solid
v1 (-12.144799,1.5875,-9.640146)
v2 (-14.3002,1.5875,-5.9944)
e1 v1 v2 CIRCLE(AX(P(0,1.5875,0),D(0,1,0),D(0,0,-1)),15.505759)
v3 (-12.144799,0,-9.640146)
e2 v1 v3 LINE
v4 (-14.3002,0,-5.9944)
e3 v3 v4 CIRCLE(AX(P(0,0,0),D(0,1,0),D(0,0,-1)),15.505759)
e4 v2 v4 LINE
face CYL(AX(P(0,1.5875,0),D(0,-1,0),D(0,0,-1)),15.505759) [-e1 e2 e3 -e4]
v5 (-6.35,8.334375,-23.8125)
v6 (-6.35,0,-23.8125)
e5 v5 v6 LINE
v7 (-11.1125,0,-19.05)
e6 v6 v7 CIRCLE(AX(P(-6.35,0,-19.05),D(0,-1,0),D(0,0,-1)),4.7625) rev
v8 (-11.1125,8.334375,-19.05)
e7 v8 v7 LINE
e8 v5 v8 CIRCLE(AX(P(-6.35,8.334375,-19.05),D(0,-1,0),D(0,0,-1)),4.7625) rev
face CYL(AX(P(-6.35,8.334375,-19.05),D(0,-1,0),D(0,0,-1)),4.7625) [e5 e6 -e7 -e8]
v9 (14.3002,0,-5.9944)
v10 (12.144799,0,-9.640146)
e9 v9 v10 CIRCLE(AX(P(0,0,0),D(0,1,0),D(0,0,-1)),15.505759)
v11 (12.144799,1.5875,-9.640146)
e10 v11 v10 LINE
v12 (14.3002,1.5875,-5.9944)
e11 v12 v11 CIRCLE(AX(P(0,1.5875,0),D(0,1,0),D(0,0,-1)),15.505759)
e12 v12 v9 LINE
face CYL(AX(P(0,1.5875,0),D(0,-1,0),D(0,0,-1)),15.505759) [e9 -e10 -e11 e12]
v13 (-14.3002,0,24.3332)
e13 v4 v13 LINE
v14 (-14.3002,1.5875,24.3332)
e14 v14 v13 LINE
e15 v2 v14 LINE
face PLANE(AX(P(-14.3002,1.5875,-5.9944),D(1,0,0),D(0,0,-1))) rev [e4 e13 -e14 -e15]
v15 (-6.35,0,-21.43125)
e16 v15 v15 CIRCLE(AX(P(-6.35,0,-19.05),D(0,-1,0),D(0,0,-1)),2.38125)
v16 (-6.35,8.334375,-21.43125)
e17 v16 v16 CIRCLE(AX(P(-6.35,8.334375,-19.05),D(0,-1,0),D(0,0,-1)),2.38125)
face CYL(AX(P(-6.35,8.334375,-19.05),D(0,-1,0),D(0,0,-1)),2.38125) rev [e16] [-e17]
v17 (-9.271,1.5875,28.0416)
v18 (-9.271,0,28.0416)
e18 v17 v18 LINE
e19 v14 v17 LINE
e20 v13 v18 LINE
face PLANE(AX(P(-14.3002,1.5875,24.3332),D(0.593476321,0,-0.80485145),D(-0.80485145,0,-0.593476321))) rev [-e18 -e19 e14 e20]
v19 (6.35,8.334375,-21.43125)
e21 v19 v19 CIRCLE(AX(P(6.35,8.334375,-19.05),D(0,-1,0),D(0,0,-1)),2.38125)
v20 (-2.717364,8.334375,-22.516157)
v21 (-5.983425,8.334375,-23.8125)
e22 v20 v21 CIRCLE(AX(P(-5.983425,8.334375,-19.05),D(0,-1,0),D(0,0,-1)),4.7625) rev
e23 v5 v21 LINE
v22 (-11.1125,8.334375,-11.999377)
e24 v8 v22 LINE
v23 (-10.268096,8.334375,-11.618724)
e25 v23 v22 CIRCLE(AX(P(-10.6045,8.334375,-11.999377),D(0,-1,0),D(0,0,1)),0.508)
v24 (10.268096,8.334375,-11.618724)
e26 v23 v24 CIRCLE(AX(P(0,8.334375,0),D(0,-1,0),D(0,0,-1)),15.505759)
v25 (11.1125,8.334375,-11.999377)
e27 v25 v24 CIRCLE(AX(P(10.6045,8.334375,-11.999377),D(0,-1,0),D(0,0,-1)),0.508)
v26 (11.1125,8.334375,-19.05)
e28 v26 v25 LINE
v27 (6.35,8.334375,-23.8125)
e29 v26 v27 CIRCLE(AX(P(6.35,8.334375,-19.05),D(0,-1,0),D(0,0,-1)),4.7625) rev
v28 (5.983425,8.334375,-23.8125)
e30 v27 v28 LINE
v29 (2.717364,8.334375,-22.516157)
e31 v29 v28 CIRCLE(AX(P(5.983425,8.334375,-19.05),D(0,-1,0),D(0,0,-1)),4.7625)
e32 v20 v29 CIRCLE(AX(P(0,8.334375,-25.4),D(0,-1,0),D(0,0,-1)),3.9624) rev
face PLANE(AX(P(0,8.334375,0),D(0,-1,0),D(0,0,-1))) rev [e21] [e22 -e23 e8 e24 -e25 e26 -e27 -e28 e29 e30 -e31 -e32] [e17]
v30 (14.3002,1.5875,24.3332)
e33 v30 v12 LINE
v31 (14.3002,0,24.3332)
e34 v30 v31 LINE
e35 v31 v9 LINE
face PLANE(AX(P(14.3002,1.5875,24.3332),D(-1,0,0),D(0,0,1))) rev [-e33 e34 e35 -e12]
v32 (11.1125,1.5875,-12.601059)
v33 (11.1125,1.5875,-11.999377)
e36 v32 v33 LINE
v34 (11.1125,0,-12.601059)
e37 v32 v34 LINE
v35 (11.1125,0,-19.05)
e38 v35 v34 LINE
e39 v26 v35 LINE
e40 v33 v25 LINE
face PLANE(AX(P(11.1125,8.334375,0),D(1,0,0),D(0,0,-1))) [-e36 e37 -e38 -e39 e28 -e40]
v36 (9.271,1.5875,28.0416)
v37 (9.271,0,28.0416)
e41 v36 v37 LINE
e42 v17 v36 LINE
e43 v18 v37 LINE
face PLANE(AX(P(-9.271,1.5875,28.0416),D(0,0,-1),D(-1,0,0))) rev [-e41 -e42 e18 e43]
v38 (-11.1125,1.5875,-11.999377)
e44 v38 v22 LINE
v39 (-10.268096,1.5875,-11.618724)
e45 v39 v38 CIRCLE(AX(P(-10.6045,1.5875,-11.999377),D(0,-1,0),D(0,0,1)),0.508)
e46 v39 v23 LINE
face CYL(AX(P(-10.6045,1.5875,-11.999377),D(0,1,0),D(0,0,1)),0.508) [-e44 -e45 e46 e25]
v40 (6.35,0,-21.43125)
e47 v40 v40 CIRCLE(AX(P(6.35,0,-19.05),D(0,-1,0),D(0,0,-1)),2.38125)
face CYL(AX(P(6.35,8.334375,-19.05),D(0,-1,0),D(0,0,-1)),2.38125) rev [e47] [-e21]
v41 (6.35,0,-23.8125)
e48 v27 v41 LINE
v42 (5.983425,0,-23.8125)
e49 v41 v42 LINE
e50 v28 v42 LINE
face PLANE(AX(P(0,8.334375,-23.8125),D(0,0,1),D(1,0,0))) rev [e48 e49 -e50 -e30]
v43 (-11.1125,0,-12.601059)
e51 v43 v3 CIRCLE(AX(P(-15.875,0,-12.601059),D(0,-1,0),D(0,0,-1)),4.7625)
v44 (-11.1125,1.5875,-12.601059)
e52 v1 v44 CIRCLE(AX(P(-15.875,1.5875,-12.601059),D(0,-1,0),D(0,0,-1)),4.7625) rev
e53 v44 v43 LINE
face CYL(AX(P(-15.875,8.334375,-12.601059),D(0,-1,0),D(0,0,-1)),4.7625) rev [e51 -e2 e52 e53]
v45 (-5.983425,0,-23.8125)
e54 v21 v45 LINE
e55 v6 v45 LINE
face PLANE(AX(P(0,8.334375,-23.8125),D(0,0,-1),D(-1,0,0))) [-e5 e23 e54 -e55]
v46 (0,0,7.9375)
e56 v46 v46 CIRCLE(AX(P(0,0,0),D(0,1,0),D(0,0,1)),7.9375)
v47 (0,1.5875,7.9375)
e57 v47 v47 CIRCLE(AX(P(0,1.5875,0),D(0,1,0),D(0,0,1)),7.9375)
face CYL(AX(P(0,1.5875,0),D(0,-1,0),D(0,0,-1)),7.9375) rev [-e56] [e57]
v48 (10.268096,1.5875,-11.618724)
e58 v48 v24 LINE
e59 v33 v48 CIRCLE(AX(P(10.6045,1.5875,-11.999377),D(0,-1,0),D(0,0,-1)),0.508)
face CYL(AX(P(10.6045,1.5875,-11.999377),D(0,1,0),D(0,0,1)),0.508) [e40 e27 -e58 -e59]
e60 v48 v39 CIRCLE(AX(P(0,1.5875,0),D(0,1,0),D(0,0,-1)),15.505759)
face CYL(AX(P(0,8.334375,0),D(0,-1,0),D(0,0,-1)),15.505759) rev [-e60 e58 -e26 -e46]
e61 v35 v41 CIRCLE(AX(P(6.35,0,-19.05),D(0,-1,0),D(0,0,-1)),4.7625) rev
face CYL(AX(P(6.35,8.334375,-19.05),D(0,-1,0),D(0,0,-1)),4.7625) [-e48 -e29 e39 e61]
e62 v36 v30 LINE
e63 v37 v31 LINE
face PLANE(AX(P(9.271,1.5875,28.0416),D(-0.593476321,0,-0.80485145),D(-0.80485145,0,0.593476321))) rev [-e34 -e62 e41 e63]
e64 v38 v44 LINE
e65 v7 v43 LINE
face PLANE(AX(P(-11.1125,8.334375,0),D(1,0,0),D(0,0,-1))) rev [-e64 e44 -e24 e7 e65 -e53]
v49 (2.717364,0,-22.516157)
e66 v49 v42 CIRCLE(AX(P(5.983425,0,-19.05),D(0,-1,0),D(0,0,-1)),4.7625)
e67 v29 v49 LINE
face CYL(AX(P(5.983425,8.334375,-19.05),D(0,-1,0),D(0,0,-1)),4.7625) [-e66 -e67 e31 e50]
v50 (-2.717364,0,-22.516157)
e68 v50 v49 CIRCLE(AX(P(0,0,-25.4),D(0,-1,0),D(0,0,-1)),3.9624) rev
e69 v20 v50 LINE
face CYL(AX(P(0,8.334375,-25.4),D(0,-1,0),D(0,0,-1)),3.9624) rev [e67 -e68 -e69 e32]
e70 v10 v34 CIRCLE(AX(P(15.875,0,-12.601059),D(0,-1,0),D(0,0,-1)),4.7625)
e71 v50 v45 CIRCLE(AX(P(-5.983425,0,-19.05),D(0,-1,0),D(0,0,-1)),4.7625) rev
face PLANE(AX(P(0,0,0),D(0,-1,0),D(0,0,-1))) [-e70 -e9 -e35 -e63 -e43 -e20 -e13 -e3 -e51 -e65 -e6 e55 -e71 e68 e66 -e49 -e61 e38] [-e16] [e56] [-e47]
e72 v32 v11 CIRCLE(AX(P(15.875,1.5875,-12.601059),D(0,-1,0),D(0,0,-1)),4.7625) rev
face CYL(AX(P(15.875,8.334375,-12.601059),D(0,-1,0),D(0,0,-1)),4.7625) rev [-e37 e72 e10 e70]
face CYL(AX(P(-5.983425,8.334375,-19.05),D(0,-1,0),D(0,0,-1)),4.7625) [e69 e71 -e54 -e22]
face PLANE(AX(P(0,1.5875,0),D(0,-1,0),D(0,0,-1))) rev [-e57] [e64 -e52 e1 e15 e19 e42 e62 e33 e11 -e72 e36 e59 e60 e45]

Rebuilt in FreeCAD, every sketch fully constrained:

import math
import FreeCAD as App
import Part
import Sketcher
from FreeCAD import Vector
Q = App.Units.Quantity

doc = App.newDocument("Part")
body = doc.addObject("PartDesign::Body", "Body")

# Sketch on XZ plane
sketch1 = doc.addObject("Sketcher::SketchObject", "Sketch")
body.addObject(sketch1)
sketch1.AttachmentSupport = (doc.XZ_Plane, [""])
sketch1.MapMode = "FlatFace"
sketch1.addGeometry([
    Part.LineSegment(Vector(-14, 24, 0), Vector(-9, 28, 0)),  # 0
    Part.LineSegment(Vector(-9, 28, 0), Vector(9, 28, 0)),  # 1
    Part.LineSegment(Vector(9, 28, 0), Vector(14, 24, 0)),  # 2
    Part.LineSegment(Vector(14, 24, 0), Vector(14, -6, 0)),  # 3
    Part.ArcOfCircle(Part.Circle(Vector(0, 0, 0), Vector(0, 0, 1), 16), math.radians(-157), math.radians(-23)),  # 4
    Part.LineSegment(Vector(-14, -6, 0), Vector(-14, 24, 0)),  # 5
    Part.Circle(Vector(0, 0, 0), Vector(0, 0, 1), 8),  # 6
], False)
sketch1.addConstraint([
    Sketcher.Constraint("Coincident", 0, 2, 1, 1),
    Sketcher.Constraint("Coincident", 1, 2, 2, 1),
    Sketcher.Constraint("Coincident", 2, 2, 3, 1),
    Sketcher.Constraint("Coincident", 3, 2, 4, 2),
    Sketcher.Constraint("Coincident", 4, 1, 5, 1),
    Sketcher.Constraint("Coincident", 5, 2, 0, 1),
    Sketcher.Constraint("Horizontal", 1),
    Sketcher.Constraint("Vertical", 3),
    Sketcher.Constraint("Vertical", 5),
    Sketcher.Constraint("Coincident", 4, 3, -1, 1),
    Sketcher.Constraint("Coincident", 6, 3, -1, 1),
    Sketcher.Constraint("Symmetric", 2, 2, 5, 2, -2),
    Sketcher.Constraint("Equal", 0, 2),
    Sketcher.Constraint("Diameter", 6, Q("0.625 in")),
    Sketcher.Constraint("DistanceX", 1, 1, 1, 2, Q("0.73 in")),
    Sketcher.Constraint("DistanceY", 3, 2, 3, 1, Q("1.194 in")),
    Sketcher.Constraint("DistanceY", 3, 2, 1, 2, Q("1.34 in")),
    Sketcher.Constraint("DistanceY", -1, 1, 0, 2, Q("1.104 in")),
    Sketcher.Constraint("DistanceX", -1, 1, 2, 2, Q("0.563 in")),
])
pad1 = doc.addObject("PartDesign::Pad", "Pad")
body.addObject(pad1)
pad1.Profile = sketch1
pad1.Length = Q("0.0625 in")
pad1.Reversed = True

# Sketch on XZ plane
sketch2 = doc.addObject("Sketcher::SketchObject", "Sketch001")
body.addObject(sketch2)
sketch2.AttachmentSupport = (doc.XZ_Plane, [""])
sketch2.MapMode = "FlatFace"
sketch2.addGeometry([
    Part.LineSegment(Vector(-11.11, -12.6, 0), Vector(-11.11, -19.05, 0)),  # 0
    Part.ArcOfCircle(Part.Circle(Vector(-6.35, -19.05, 0), Vector(0, 0, 1), 4.76), math.radians(-180), math.radians(-90)),  # 1
    Part.LineSegment(Vector(-6.35, -23.81, 0), Vector(-5.98, -23.81, 0)),  # 2
    Part.ArcOfCircle(Part.Circle(Vector(-5.98, -19.05, 0), Vector(0, 0, 1), 4.76), math.radians(-90), math.radians(-47)),  # 3
    Part.ArcOfCircle(Part.Circle(Vector(0, -25.4, 0), Vector(0, 0, 1), 3.96), math.radians(47), math.radians(133)),  # 4
    Part.ArcOfCircle(Part.Circle(Vector(5.98, -19.05, 0), Vector(0, 0, 1), 4.76), math.radians(-133), math.radians(-90)),  # 5
    Part.LineSegment(Vector(5.98, -23.81, 0), Vector(6.35, -23.81, 0)),  # 6
    Part.ArcOfCircle(Part.Circle(Vector(6.35, -19.05, 0), Vector(0, 0, 1), 4.76), math.radians(-90), math.radians(0)),  # 7
    Part.LineSegment(Vector(11.11, -19.05, 0), Vector(11.11, -12.6, 0)),  # 8
    Part.ArcOfCircle(Part.Circle(Vector(15.87, -12.6, 0), Vector(0, 0, 1), 4.76), math.radians(142), math.radians(180)),  # 9
    Part.ArcOfCircle(Part.Circle(Vector(0, 0, 0), Vector(0, 0, 1), 15.51), math.radians(-142), math.radians(-38)),  # 10
    Part.ArcOfCircle(Part.Circle(Vector(-15.87, -12.6, 0), Vector(0, 0, 1), 4.76), math.radians(0), math.radians(38)),  # 11
    Part.Circle(Vector(-6.35, -19.05, 0), Vector(0, 0, 1), 2.38),  # 12
    Part.Circle(Vector(6.35, -19.05, 0), Vector(0, 0, 1), 2.38),  # 13
], False)
sketch2.addConstraint([
    Sketcher.Constraint("Tangent", 0, 2, 1, 1),
    Sketcher.Constraint("Tangent", 1, 2, 2, 1),
    Sketcher.Constraint("Tangent", 2, 2, 3, 1),
    Sketcher.Constraint("Tangent", 3, 2, 4, 2),
    Sketcher.Constraint("Tangent", 4, 1, 5, 1),
    Sketcher.Constraint("Tangent", 5, 2, 6, 1),
    Sketcher.Constraint("Tangent", 6, 2, 7, 1),
    Sketcher.Constraint("Tangent", 7, 2, 8, 1),
    Sketcher.Constraint("Tangent", 8, 2, 9, 2),
    Sketcher.Constraint("Tangent", 9, 1, 10, 2),
    Sketcher.Constraint("Tangent", 10, 1, 11, 2),
    Sketcher.Constraint("Tangent", 11, 1, 0, 1),
    Sketcher.Constraint("Vertical", 0),
    Sketcher.Constraint("Horizontal", 2),
    Sketcher.Constraint("Horizontal", 6),
    Sketcher.Constraint("Vertical", 8),
    Sketcher.Constraint("Coincident", 10, 3, -1, 1),
    Sketcher.Constraint("Coincident", 12, 3, 1, 3),
    Sketcher.Constraint("Coincident", 13, 3, 7, 3),
    Sketcher.Constraint("Equal", 1, 3),
    Sketcher.Constraint("Equal", 3, 5),
    Sketcher.Constraint("Equal", 5, 7),
    Sketcher.Constraint("Equal", 7, 9),
    Sketcher.Constraint("Equal", 9, 11),
    Sketcher.Constraint("Equal", 12, 13),
    Sketcher.Constraint("Symmetric", 3, 3, 5, 3, -2),
    Sketcher.Constraint("Horizontal", 9, 3, 11, 3),
    Sketcher.Constraint("Diameter", 12, Q("0.1875 in")),
    Sketcher.Constraint("DistanceY", 4, 3, -1, 1, Q("1 in")),
    Sketcher.Constraint("Radius", 1, Q("0.1875 in")),
    Sketcher.Constraint("Radius", 4, Q("0.156 in")),
    Sketcher.Constraint("DistanceX", 1, 3, 7, 3, Q("0.5 in")),
    Sketcher.Constraint("DistanceY", 1, 3, -1, 1, Q("0.75 in")),
    Sketcher.Constraint("Radius", 10, 15.505759),
])
pad2 = doc.addObject("PartDesign::Pad", "Pad001")
body.addObject(pad2)
pad2.Profile = sketch2
pad2.Length = Q("0.328125 in")
pad2.Reversed = True

# Sketch on XZ plane
sketch3 = doc.addObject("Sketcher::SketchObject", "Sketch002")
body.addObject(sketch3)
sketch3.AttachmentSupport = (doc.XZ_Plane, [""])
sketch3.MapMode = "FlatFace"
sketch3.AttachmentOffset = App.Placement(Vector(0, 0, -0.0625 * 25.4), App.Rotation())
sketch3.addGeometry([
    Part.LineSegment(Vector(-11.1, -12, 0), Vector(-11.1, -19.1, 0)),  # 0
    Part.LineSegment(Vector(-11.1, -19.1, 0), Vector(-16.6, -6.9, 0)),  # 1
    Part.LineSegment(Vector(-16.6, -6.9, 0), Vector(16.4, -6.4, 0)),  # 2
    Part.LineSegment(Vector(16.4, -6.4, 0), Vector(11.1, -19.1, 0)),  # 3
    Part.LineSegment(Vector(11.1, -19.1, 0), Vector(11.1, -12, 0)),  # 4
    Part.ArcOfCircle(Part.Circle(Vector(10.6, -12, 0), Vector(0, 0, 1), 0.5), math.radians(0), math.radians(131)),  # 5
    Part.ArcOfCircle(Part.Circle(Vector(0, 0, 0), Vector(0, 0, 1), 15.5), math.radians(-131), math.radians(-49)),  # 6
    Part.ArcOfCircle(Part.Circle(Vector(-10.6, -12, 0), Vector(0, 0, 1), 0.5), math.radians(49), math.radians(180)),  # 7
], False)
sketch3.addConstraint([
    Sketcher.Constraint("Coincident", 0, 2, 1, 1),
    Sketcher.Constraint("Coincident", 1, 2, 2, 1),
    Sketcher.Constraint("Coincident", 2, 2, 3, 1),
    Sketcher.Constraint("Coincident", 3, 2, 4, 1),
    Sketcher.Constraint("Tangent", 4, 2, 5, 1),
    Sketcher.Constraint("Tangent", 5, 2, 6, 2),
    Sketcher.Constraint("Tangent", 6, 1, 7, 1),
    Sketcher.Constraint("Tangent", 7, 2, 0, 1),
    Sketcher.Constraint("Vertical", 0),
    Sketcher.Constraint("Vertical", 4),
    Sketcher.Constraint("Coincident", 6, 3, -1, 1),
    Sketcher.Constraint("Equal", 5, 7),
    Sketcher.Constraint("Symmetric", 0, 2, 3, 2, -2),
    Sketcher.Constraint("Radius", 5, Q("0.02 in")),
    Sketcher.Constraint("DistanceY", 0, 2, -1, 1, Q("0.75 in")),
    Sketcher.Constraint("DistanceX", 0, 2, -1, 1, Q("0.4375 in")),
    Sketcher.Constraint("Radius", 6, 15.505759),
    Sketcher.Constraint("DistanceY", 5, 2, 2, 2, 5.268398),
    Sketcher.Constraint("DistanceX", 1, 2, -1, 1, 16.620971),
    Sketcher.Constraint("DistanceX", -1, 1, 2, 2, 16.416178),
    Sketcher.Constraint("DistanceY", 6, 1, 1, 2, 4.728281),
])
pocket1 = doc.addObject("PartDesign::Pocket", "Pocket")
body.addObject(pocket1)
pocket1.Profile = sketch3
pocket1.Length = Q("0.265625 in")

doc.recompute()
